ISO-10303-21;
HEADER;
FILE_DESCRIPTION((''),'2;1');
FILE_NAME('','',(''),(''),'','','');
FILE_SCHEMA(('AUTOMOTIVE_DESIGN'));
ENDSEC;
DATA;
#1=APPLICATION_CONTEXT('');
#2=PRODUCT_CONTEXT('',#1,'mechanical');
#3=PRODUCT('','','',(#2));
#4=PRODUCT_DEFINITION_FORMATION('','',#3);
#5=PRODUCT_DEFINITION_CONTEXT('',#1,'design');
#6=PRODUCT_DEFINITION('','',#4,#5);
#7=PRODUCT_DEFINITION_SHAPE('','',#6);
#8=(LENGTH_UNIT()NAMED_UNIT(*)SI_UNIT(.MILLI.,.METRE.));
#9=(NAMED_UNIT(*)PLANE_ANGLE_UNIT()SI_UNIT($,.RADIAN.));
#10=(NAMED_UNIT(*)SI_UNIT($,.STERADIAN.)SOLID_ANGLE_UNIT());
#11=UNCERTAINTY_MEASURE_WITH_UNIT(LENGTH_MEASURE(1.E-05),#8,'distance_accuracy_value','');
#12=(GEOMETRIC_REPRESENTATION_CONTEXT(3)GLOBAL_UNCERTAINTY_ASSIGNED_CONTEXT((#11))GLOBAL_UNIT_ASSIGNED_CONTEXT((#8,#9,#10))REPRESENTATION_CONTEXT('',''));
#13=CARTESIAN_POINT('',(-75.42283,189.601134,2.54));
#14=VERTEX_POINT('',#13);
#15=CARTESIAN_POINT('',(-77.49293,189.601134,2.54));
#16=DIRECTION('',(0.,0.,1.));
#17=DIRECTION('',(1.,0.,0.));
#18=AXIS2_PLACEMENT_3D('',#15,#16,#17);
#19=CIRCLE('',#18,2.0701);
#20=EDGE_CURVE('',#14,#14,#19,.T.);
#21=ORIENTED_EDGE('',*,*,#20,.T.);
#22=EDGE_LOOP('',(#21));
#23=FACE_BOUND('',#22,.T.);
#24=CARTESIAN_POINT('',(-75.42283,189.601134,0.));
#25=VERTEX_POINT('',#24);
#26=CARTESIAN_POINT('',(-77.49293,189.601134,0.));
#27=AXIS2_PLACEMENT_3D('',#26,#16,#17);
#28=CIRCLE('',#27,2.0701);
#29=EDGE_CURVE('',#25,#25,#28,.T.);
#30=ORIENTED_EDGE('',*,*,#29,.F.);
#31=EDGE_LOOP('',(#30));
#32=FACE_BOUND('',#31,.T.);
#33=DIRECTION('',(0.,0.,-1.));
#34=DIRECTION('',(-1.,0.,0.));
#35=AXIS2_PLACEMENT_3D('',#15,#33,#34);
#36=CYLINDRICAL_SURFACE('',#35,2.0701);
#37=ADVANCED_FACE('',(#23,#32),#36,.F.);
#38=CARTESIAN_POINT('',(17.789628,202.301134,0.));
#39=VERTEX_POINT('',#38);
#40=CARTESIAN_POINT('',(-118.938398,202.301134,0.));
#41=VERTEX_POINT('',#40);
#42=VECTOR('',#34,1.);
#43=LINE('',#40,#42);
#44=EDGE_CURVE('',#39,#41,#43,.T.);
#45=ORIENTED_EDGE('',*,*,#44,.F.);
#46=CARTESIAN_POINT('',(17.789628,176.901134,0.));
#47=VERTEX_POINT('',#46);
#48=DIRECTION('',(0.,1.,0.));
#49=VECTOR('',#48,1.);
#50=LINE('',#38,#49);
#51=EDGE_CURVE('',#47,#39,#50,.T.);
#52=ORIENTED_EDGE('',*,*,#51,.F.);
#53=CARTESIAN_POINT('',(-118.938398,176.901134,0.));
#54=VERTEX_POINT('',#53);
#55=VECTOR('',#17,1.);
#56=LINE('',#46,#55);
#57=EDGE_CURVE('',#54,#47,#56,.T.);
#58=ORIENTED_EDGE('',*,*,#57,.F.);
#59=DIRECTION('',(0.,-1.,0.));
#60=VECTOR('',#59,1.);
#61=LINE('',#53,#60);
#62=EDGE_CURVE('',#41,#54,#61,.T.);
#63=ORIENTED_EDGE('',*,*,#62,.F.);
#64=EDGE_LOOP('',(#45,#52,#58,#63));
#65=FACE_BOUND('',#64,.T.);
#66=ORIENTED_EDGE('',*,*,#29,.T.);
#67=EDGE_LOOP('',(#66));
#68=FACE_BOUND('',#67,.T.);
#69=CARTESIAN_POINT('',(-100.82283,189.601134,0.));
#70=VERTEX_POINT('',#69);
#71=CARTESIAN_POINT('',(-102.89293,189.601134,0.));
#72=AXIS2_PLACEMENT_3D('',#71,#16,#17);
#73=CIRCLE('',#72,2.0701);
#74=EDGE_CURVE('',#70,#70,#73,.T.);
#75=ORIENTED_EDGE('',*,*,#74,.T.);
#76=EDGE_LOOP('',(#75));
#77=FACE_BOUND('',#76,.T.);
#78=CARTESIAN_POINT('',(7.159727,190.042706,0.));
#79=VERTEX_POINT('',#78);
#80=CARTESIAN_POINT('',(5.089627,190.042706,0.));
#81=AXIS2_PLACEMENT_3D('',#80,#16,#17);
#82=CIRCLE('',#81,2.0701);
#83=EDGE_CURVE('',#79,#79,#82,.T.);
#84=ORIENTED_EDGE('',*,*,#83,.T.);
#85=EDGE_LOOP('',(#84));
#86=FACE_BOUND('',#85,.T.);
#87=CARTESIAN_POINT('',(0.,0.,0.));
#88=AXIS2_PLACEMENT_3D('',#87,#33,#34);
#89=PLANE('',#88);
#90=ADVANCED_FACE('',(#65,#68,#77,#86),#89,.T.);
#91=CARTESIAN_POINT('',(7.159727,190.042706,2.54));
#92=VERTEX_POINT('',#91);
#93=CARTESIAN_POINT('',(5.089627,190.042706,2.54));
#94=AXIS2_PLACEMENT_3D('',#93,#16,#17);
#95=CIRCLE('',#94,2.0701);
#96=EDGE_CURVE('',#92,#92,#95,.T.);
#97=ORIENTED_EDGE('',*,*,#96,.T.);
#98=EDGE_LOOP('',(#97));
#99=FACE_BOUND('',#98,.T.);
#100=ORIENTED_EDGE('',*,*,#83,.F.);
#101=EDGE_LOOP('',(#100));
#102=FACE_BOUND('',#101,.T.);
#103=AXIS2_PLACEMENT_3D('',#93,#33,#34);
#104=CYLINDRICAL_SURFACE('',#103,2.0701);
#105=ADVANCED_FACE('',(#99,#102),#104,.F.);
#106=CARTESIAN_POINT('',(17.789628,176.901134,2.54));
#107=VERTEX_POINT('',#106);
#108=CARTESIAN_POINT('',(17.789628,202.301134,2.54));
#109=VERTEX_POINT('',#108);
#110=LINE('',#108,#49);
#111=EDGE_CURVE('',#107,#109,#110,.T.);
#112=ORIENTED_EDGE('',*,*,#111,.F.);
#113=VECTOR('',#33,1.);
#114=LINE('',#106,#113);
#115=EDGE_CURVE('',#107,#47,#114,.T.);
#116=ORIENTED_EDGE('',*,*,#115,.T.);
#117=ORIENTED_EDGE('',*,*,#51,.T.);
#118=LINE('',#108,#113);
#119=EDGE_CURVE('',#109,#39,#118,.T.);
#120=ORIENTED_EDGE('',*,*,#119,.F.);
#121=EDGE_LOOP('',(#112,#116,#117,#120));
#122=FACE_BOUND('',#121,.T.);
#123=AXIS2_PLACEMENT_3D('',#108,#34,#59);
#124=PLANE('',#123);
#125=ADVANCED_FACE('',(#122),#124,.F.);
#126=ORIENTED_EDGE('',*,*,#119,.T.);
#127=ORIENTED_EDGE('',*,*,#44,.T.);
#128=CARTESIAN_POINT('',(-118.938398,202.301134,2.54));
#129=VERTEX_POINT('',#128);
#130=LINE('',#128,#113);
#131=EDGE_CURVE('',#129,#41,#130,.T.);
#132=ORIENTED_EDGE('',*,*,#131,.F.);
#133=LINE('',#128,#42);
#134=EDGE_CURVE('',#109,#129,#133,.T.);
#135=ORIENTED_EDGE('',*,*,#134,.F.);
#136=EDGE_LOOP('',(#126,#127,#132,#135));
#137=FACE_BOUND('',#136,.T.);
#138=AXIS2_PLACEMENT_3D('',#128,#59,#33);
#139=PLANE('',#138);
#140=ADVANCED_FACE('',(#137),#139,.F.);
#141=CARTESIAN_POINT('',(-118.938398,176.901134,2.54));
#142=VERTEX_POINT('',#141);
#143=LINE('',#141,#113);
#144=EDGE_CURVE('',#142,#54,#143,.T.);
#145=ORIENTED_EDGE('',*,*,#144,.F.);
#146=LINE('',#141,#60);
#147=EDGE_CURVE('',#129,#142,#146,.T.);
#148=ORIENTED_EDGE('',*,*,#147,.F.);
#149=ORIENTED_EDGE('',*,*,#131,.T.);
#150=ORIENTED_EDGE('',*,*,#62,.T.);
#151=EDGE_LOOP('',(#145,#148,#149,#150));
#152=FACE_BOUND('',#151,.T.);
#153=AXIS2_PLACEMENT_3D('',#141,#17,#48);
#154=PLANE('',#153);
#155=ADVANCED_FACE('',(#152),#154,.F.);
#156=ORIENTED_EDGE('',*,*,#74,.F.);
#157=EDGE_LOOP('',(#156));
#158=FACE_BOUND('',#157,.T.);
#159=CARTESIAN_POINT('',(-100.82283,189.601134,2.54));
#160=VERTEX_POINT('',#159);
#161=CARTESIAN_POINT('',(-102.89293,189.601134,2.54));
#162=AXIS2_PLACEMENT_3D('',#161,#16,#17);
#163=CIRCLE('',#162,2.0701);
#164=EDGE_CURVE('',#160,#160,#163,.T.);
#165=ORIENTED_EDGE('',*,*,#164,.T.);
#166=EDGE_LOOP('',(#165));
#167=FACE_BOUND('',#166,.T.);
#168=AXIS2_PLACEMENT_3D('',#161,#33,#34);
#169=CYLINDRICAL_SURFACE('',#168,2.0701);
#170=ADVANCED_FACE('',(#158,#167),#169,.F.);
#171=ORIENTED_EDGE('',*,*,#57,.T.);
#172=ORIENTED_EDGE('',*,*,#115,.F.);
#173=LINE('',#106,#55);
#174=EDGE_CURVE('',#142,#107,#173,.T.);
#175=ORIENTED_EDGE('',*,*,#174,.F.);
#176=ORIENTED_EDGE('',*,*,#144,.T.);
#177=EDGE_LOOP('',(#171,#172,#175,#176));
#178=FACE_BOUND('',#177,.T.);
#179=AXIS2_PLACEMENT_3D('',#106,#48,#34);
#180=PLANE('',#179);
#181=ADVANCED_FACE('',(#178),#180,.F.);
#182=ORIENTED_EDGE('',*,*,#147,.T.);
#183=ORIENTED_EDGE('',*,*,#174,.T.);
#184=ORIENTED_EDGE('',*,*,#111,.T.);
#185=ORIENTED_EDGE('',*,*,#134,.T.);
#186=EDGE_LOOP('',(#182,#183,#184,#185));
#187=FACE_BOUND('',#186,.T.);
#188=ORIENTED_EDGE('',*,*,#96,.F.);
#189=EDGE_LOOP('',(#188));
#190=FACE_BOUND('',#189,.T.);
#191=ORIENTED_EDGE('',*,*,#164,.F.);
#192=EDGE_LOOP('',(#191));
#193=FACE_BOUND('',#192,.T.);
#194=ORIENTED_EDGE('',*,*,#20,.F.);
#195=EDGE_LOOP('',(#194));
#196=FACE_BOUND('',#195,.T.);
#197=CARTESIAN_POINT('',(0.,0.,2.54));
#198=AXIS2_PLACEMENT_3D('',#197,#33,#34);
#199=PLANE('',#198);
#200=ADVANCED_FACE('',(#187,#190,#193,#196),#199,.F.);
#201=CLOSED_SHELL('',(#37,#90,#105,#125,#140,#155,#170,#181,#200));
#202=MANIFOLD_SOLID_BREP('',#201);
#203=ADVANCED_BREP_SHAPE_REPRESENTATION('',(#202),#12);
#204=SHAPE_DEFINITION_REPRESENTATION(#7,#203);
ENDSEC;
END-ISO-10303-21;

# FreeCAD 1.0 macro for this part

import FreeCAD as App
import Part
import Sketcher
Q = App.Units.Quantity


def add_polygon(sketch, points):
    """Adds a closed chain of lines whose ends are joined by coincident constraints."""
    first, n = sketch.GeometryCount, len(points)
    for a, b in zip(points, points[1:] + points[:1]):
        sketch.addGeometry(Part.LineSegment(App.Vector(*a, 0), App.Vector(*b, 0)), False)
    for i in range(n):
        sketch.addConstraint(Sketcher.Constraint("Coincident", first + i, 2, first + (i + 1) % n, 1))

doc = App.newDocument("Part")
params = doc.addObject("Spreadsheet::Sheet", "Params")
for row, (alias, value) in enumerate([
    ("sketch1_height", "1 in"),
    ("sketch1_diameter", "0.163 in"),
    ("pad1_length", "0.1 in"),
], start=1):
    params.set(f"A{row}", alias)
    params.set(f"B{row}", "=" + value)
    params.setAlias(f"B{row}", alias)

body = doc.addObject("PartDesign::Body", "Body")

# Sketch on XY plane
sketch1 = body.newObject("Sketcher::SketchObject", "Sketch")
sketch1.AttachmentSupport = (doc.getObject("XY_Plane"), [""])
sketch1.MapMode = "FlatFace"
add_polygon(sketch1, [(-118.9, 202.3), (-118.9, 176.9), (17.8, 176.9), (17.8, 202.3)])  # lines 0-3
sketch1.addGeometry(Part.Circle(App.Vector(-102.9, 189.6, 0), App.Vector(0, 0, 1), 2.1), False)  # 4
sketch1.addGeometry(Part.Circle(App.Vector(-77.5, 189.6, 0), App.Vector(0, 0, 1), 2.1), False)  # 5
sketch1.addGeometry(Part.Circle(App.Vector(5.1, 190, 0), App.Vector(0, 0, 1), 2.1), False)  # 6
sketch1.addConstraint([
    Sketcher.Constraint("Vertical", 0),
    Sketcher.Constraint("Horizontal", 1),
    Sketcher.Constraint("Vertical", 2),
    Sketcher.Constraint("Horizontal", 3),
    Sketcher.Constraint("Equal", 4, 5),
    Sketcher.Constraint("Equal", 5, 6),
    Sketcher.Constraint("Horizontal", 4, 3, 5, 3),
    Sketcher.Constraint("DistanceY", 0, 2, 0, 1, Q("1 in")),
    Sketcher.Constraint("Diameter", 4, Q("0.163 in")),
    Sketcher.Constraint("DistanceX", 4, 3, 5, 3, Q("1 in")),
    Sketcher.Constraint("DistanceY", 0, 2, 4, 3, Q("0.5 in")),
    Sketcher.Constraint("DistanceX", 6, 3, 1, 2, Q("0.5 in")),
    Sketcher.Constraint("DistanceX", 0, 2, -1, 1, Q("118.938398 mm")),
    Sketcher.Constraint("DistanceX", 1, 1, 1, 2, Q("136.728027 mm")),
    Sketcher.Constraint("DistanceX", 4, 3, -1, 1, Q("102.89293 mm")),
    Sketcher.Constraint("DistanceY", -1, 1, 4, 3, Q("189.601134 mm")),
    Sketcher.Constraint("DistanceY", -1, 1, 6, 3, Q("190.042706 mm")),
])
sketch1.setExpression("Constraints[11]", "Params.sketch1_height")
sketch1.setExpression("Constraints[12]", "Params.sketch1_diameter")
pad1 = body.newObject("PartDesign::Pad", "Pad")
pad1.Profile = sketch1
pad1.setExpression("Length", "Params.pad1_length")

doc.recompute()
